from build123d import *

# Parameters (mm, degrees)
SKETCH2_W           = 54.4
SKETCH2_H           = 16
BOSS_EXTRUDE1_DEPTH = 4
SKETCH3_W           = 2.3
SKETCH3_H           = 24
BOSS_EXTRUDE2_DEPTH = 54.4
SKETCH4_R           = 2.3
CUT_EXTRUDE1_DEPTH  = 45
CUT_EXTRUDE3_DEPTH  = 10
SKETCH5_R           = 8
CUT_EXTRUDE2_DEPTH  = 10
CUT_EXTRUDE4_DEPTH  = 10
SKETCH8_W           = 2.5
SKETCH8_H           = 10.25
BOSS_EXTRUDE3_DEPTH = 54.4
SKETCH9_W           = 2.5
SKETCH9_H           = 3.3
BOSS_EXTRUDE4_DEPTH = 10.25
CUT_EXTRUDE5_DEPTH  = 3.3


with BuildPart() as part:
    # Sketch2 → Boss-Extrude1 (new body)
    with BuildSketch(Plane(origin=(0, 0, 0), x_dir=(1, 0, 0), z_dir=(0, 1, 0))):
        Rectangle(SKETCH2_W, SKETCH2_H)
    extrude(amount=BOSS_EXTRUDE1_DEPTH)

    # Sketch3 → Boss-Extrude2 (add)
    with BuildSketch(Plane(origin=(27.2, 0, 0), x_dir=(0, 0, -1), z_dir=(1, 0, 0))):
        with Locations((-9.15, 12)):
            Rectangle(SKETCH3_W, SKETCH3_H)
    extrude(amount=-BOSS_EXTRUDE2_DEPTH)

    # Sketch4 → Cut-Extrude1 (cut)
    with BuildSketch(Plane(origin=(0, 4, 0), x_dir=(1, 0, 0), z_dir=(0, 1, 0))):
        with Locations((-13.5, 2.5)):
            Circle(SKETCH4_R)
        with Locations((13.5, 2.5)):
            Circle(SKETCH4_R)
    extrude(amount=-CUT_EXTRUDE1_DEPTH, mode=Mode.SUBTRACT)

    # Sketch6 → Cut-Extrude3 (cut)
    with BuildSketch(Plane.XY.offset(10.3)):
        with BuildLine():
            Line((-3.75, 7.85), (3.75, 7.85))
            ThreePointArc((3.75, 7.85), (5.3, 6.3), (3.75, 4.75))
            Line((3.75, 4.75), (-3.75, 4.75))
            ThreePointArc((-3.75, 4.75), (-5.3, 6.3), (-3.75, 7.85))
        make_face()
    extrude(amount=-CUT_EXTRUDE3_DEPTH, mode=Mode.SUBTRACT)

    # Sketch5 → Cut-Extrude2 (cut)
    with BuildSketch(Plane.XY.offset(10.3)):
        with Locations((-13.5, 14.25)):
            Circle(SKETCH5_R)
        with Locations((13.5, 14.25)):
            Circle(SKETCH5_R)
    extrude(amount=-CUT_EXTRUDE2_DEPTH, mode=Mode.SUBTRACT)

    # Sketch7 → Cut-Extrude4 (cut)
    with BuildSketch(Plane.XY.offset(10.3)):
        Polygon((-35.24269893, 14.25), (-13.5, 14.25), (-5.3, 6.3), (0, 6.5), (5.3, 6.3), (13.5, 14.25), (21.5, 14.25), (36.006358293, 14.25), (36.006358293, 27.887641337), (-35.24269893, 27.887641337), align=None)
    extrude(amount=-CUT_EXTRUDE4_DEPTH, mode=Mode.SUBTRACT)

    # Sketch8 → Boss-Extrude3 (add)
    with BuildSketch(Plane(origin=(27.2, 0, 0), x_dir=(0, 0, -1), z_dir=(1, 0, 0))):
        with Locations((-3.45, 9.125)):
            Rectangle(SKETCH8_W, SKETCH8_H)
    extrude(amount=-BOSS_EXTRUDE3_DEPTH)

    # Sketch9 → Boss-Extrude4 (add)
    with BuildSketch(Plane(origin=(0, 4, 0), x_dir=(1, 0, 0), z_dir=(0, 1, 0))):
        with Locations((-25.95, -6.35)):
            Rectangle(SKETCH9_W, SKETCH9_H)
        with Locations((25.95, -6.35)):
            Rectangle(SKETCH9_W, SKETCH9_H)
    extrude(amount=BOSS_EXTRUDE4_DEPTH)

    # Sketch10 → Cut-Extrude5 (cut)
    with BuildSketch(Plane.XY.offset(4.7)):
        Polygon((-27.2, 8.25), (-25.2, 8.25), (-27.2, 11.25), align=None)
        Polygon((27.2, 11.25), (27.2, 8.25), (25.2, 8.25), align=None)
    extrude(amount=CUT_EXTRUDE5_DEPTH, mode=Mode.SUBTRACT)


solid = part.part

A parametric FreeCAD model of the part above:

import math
import FreeCAD as App
import Part
import Sketcher
from FreeCAD import Vector
Q = App.Units.Quantity

doc = App.newDocument("Part")
body = doc.addObject("PartDesign::Body", "Body")

sketch1 = body.newObject("Sketcher::SketchObject", "Sketch")
sketch1.AttachmentSupport = (doc.getObject("XZ_Plane"), [""])
sketch1.MapMode = "FlatFace"
sketch1.addGeometry(Part.LineSegment(Vector(-27, -8, 0), Vector(-27, 8, 0)), False)
sketch1.addGeometry(Part.LineSegment(Vector(-27, 8, 0), Vector(27, 8, 0)), False)
sketch1.addGeometry(Part.LineSegment(Vector(27, 8, 0), Vector(27, -8, 0)), False)
sketch1.addGeometry(Part.LineSegment(Vector(27, -8, 0), Vector(-27, -8, 0)), False)
sketch1.addConstraint(Sketcher.Constraint("Coincident", 0, 2, 1, 1))
sketch1.addConstraint(Sketcher.Constraint("Coincident", 1, 2, 2, 1))
sketch1.addConstraint(Sketcher.Constraint("Coincident", 2, 2, 3, 1))
sketch1.addConstraint(Sketcher.Constraint("Coincident", 3, 2, 0, 1))
sketch1.addConstraint(Sketcher.Constraint("Vertical", 0))
sketch1.addConstraint(Sketcher.Constraint("Horizontal", 1))
sketch1.addConstraint(Sketcher.Constraint("Vertical", 2))
sketch1.addConstraint(Sketcher.Constraint("Horizontal", 3))
sketch1.addConstraint(Sketcher.Constraint("Symmetric", 0, 2, 2, 2, -1, 1))
sketch1.addConstraint(Sketcher.Constraint("DistanceY", 0, 1, 0, 2, Q("16 mm")))
sketch1.addConstraint(Sketcher.Constraint("DistanceX", 1, 1, 1, 2, Q("54.4 mm")))
pad1 = body.newObject("PartDesign::Pad", "Pad")
pad1.Profile = sketch1
pad1.Length = 4
pad1.Reversed = True

sketch2 = body.newObject("Sketcher::SketchObject", "Sketch001")
sketch2.AttachmentSupport = (doc.getObject("YZ_Plane"), [""])
sketch2.MapMode = "FlatFace"
sketch2.AttachmentOffset = App.Placement(Vector(0, 0, 27.2), App.Rotation())
sketch2.addGeometry(Part.LineSegment(Vector(24, 10.3, 0), Vector(0, 10.3, 0)), False)
sketch2.addGeometry(Part.LineSegment(Vector(0, 10.3, 0), Vector(0, 8, 0)), False)
sketch2.addGeometry(Part.LineSegment(Vector(0, 8, 0), Vector(24, 8, 0)), False)
sketch2.addGeometry(Part.LineSegment(Vector(24, 8, 0), Vector(24, 10.3, 0)), False)
sketch2.addConstraint(Sketcher.Constraint("Coincident", 0, 2, 1, 1))
sketch2.addConstraint(Sketcher.Constraint("Coincident", 1, 2, 2, 1))
sketch2.addConstraint(Sketcher.Constraint("Coincident", 2, 2, 3, 1))
sketch2.addConstraint(Sketcher.Constraint("Coincident", 3, 2, 0, 1))
sketch2.addConstraint(Sketcher.Constraint("Horizontal", 0))
sketch2.addConstraint(Sketcher.Constraint("Vertical", 1))
sketch2.addConstraint(Sketcher.Constraint("Horizontal", 2))
sketch2.addConstraint(Sketcher.Constraint("Vertical", 3))
sketch2.addConstraint(Sketcher.Constraint("PointOnObject", 0, 2, -2))
sketch2.addConstraint(Sketcher.Constraint("DistanceX", 0, 2, 0, 1, Q("24 mm")))
sketch2.addConstraint(Sketcher.Constraint("DistanceY", 1, 2, 1, 1, Q("2.3 mm")))
sketch2.addConstraint(Sketcher.Constraint("DistanceY", -1, 1, 1, 2, Q("8 mm")))
pad2 = body.newObject("PartDesign::Pad", "Pad001")
pad2.Profile = sketch2
pad2.Length = 54.4
pad2.Reversed = True

sketch3 = body.newObject("Sketcher::SketchObject", "Sketch002")
sketch3.AttachmentSupport = (doc.getObject("XZ_Plane"), [""])
sketch3.MapMode = "FlatFace"
sketch3.AttachmentOffset = App.Placement(Vector(0, 0, -4), App.Rotation())
sketch3.addGeometry(Part.Circle(Vector(-13.5, -2.5, 0), Vector(0, 0, 1), 2.3), False)
sketch3.addGeometry(Part.Circle(Vector(13.5, -2.5, 0), Vector(0, 0, 1), 2.3), False)
sketch3.addConstraint(Sketcher.Constraint("Equal", 0, 1))
sketch3.addConstraint(Sketcher.Constraint("Symmetric", 0, 3, 1, 3, -2))
sketch3.addConstraint(Sketcher.Constraint("Diameter", 0, Q("4.6 mm")))
sketch3.addConstraint(Sketcher.Constraint("DistanceX", 0, 3, 1, 3, Q("27 mm")))
sketch3.addConstraint(Sketcher.Constraint("DistanceY", 0, 3, -1, 1, Q("2.5 mm")))
pocket1 = body.newObject("PartDesign::Pocket", "Pocket")
pocket1.Profile = sketch3
pocket1.Length = 45
pocket1.Reversed = True

sketch4 = body.newObject("Sketcher::SketchObject", "Sketch003")
sketch4.AttachmentSupport = (doc.getObject("XY_Plane"), [""])
sketch4.MapMode = "FlatFace"
sketch4.AttachmentOffset = App.Placement(Vector(0, 0, 10.3), App.Rotation())
sketch4.addGeometry(Part.LineSegment(Vector(3.8, 7.8, 0), Vector(-3.8, 7.8, 0)), False)
sketch4.addGeometry(Part.ArcOfCircle(Part.Circle(Vector(-3.8, 6.3, 0), Vector(0, 0, 1), 1.6), math.radians(90), math.radians(270)), False)
sketch4.addGeometry(Part.LineSegment(Vector(-3.8, 4.8, 0), Vector(3.8, 4.8, 0)), False)
sketch4.addGeometry(Part.ArcOfCircle(Part.Circle(Vector(3.8, 6.3, 0), Vector(0, 0, 1), 1.6), math.radians(-90), math.radians(90)), False)
sketch4.addConstraint(Sketcher.Constraint("Tangent", 0, 2, 1, 1))
sketch4.addConstraint(Sketcher.Constraint("Tangent", 1, 2, 2, 1))
sketch4.addConstraint(Sketcher.Constraint("Tangent", 2, 2, 3, 1))
sketch4.addConstraint(Sketcher.Constraint("Tangent", 3, 2, 0, 1))
sketch4.addConstraint(Sketcher.Constraint("Horizontal", 0))
sketch4.addConstraint(Sketcher.Constraint("Horizontal", 2))
sketch4.addConstraint(Sketcher.Constraint("Radius", 1, Q("1.55 mm")))
sketch4.addConstraint(Sketcher.Constraint("DistanceX", 0, 2, 0, 1, Q("7.5 mm")))
sketch4.addConstraint(Sketcher.Constraint("DistanceY", -1, 1, 1, 3, Q("6.3 mm")))
sketch4.addConstraint(Sketcher.Constraint("DistanceX", 1, 3, -1, 1, Q("3.75 mm")))
pocket2 = body.newObject("PartDesign::Pocket", "Pocket001")
pocket2.Profile = sketch4
pocket2.Length = 10

sketch5 = body.newObject("Sketcher::SketchObject", "Sketch004")
sketch5.AttachmentSupport = (doc.getObject("XY_Plane"), [""])
sketch5.MapMode = "FlatFace"
sketch5.AttachmentOffset = App.Placement(Vector(0, 0, 10.3), App.Rotation())
sketch5.addGeometry(Part.Circle(Vector(-14, 14, 0), Vector(0, 0, 1), 8), False)
sketch5.addGeometry(Part.Circle(Vector(14, 14, 0), Vector(0, 0, 1), 8), False)
sketch5.addConstraint(Sketcher.Constraint("Equal", 0, 1))
sketch5.addConstraint(Sketcher.Constraint("Symmetric", 0, 3, 1, 3, -2))
sketch5.addConstraint(Sketcher.Constraint("Diameter", 0, Q("16 mm")))
sketch5.addConstraint(Sketcher.Constraint("DistanceX", 0, 3, 1, 3, Q("27 mm")))
sketch5.addConstraint(Sketcher.Constraint("DistanceY", -1, 1, 0, 3, Q("14.25 mm")))
pocket3 = body.newObject("PartDesign::Pocket", "Pocket002")
pocket3.Profile = sketch5
pocket3.Length = 10

sketch6 = body.newObject("Sketcher::SketchObject", "Sketch005")
sketch6.AttachmentSupport = (doc.getObject("XY_Plane"), [""])
sketch6.MapMode = "FlatFace"
sketch6.AttachmentOffset = App.Placement(Vector(0, 0, 10.3), App.Rotation())
sketch6.addGeometry(Part.LineSegment(Vector(-35, 14, 0), Vector(-14, 14, 0)), False)
sketch6.addGeometry(Part.LineSegment(Vector(-14, 14, 0), Vector(-5, 6, 0)), False)
sketch6.addGeometry(Part.LineSegment(Vector(-5, 6, 0), Vector(0, 6, 0)), False)
sketch6.addGeometry(Part.LineSegment(Vector(0, 6, 0), Vector(5, 6, 0)), False)
sketch6.addGeometry(Part.LineSegment(Vector(5, 6, 0), Vector(14, 14, 0)), False)
sketch6.addGeometry(Part.LineSegment(Vector(14, 14, 0), Vector(36, 14, 0)), False)
sketch6.addGeometry(Part.LineSegment(Vector(36, 14, 0), Vector(36, 28, 0)), False)
sketch6.addGeometry(Part.LineSegment(Vector(36, 28, 0), Vector(-35, 28, 0)), False)
sketch6.addGeometry(Part.LineSegment(Vector(-35, 28, 0), Vector(-35, 14, 0)), False)
sketch6.addConstraint(Sketcher.Constraint("Coincident", 0, 2, 1, 1))
sketch6.addConstraint(Sketcher.Constraint("Coincident", 1, 2, 2, 1))
sketch6.addConstraint(Sketcher.Constraint("Coincident", 2, 2, 3, 1))
sketch6.addConstraint(Sketcher.Constraint("Coincident", 3, 2, 4, 1))
sketch6.addConstraint(Sketcher.Constraint("Coincident", 4, 2, 5, 1))
sketch6.addConstraint(Sketcher.Constraint("Coincident", 5, 2, 6, 1))
sketch6.addConstraint(Sketcher.Constraint("Coincident", 6, 2, 7, 1))
sketch6.addConstraint(Sketcher.Constraint("Coincident", 7, 2, 8, 1))
sketch6.addConstraint(Sketcher.Constraint("Coincident", 8, 2, 0, 1))
sketch6.addConstraint(Sketcher.Constraint("Horizontal", 0))
sketch6.addConstraint(Sketcher.Constraint("Horizontal", 5))
sketch6.addConstraint(Sketcher.Constraint("Vertical", 6))
sketch6.addConstraint(Sketcher.Constraint("Horizontal", 7))
sketch6.addConstraint(Sketcher.Constraint("Vertical", 8))
sketch6.addConstraint(Sketcher.Constraint("Symmetric", 1, 2, 3, 2, -2))
sketch6.addConstraint(Sketcher.Constraint("Symmetric", 0, 2, 4, 2, -2))
sketch6.addConstraint(Sketcher.Constraint("PointOnObject", 2, 2, -2))
sketch6.addConstraint(Sketcher.Constraint("DistanceX", 0, 2, 4, 2, Q("27 mm")))
sketch6.addConstraint(Sketcher.Constraint("DistanceX", 1, 2, -1, 1, Q("5.3 mm")))
sketch6.addConstraint(Sketcher.Constraint("DistanceY", -1, 1, 1, 2, Q("6.3 mm")))
sketch6.addConstraint(Sketcher.Constraint("DistanceY", -1, 1, 2, 2, Q("6.5 mm")))
sketch6.addConstraint(Sketcher.Constraint("DistanceY", -1, 1, 0, 2, Q("14.25 mm")))
sketch6.addConstraint(Sketcher.Constraint("DistanceX", 0, 1, 0, 2, Q("21.742699 mm")))
sketch6.addConstraint(Sketcher.Constraint("DistanceX", 5, 1, 5, 2, Q("22.506358 mm")))
sketch6.addConstraint(Sketcher.Constraint("DistanceY", 6, 1, 6, 2, Q("13.637641 mm")))
pocket4 = body.newObject("PartDesign::Pocket", "Pocket003")
pocket4.Profile = sketch6
pocket4.Length = 10

sketch7 = body.newObject("Sketcher::SketchObject", "Sketch006")
sketch7.AttachmentSupport = (doc.getObject("YZ_Plane"), [""])
sketch7.MapMode = "FlatFace"
sketch7.AttachmentOffset = App.Placement(Vector(0, 0, 27.2), App.Rotation())
sketch7.addGeometry(Part.LineSegment(Vector(14.2, 4.7, 0), Vector(4, 4.7, 0)), False)
sketch7.addGeometry(Part.LineSegment(Vector(4, 4.7, 0), Vector(4, 2.2, 0)), False)
sketch7.addGeometry(Part.LineSegment(Vector(4, 2.2, 0), Vector(14.2, 2.2, 0)), False)
sketch7.addGeometry(Part.LineSegment(Vector(14.2, 2.2, 0), Vector(14.2, 4.7, 0)), False)
sketch7.addConstraint(Sketcher.Constraint("Coincident", 0, 2, 1, 1))
sketch7.addConstraint(Sketcher.Constraint("Coincident", 1, 2, 2, 1))
sketch7.addConstraint(Sketcher.Constraint("Coincident", 2, 2, 3, 1))
sketch7.addConstraint(Sketcher.Constraint("Coincident", 3, 2, 0, 1))
sketch7.addConstraint(Sketcher.Constraint("Horizontal", 0))
sketch7.addConstraint(Sketcher.Constraint("Vertical", 1))
sketch7.addConstraint(Sketcher.Constraint("Horizontal", 2))
sketch7.addConstraint(Sketcher.Constraint("Vertical", 3))
sketch7.addConstraint(Sketcher.Constraint("DistanceY", 1, 2, 1, 1, Q("2.5 mm")))
sketch7.addConstraint(Sketcher.Constraint("DistanceX", -1, 1, 0, 2, Q("4 mm")))
sketch7.addConstraint(Sketcher.Constraint("DistanceX", 0, 2, 0, 1, Q("10.25 mm")))
sketch7.addConstraint(Sketcher.Constraint("DistanceY", -1, 1, 0, 2, Q("4.7 mm")))
pad3 = body.newObject("PartDesign::Pad", "Pad002")
pad3.Profile = sketch7
pad3.Length = 54.4
pad3.Reversed = True

sketch8 = body.newObject("Sketcher::SketchObject", "Sketch007")
sketch8.AttachmentSupport = (doc.getObject("XZ_Plane"), [""])
sketch8.MapMode = "FlatFace"
sketch8.AttachmentOffset = App.Placement(Vector(0, 0, -4), App.Rotation())
sketch8.addGeometry(Part.LineSegment(Vector(-27.2, 4.7, 0), Vector(-27.2, 8, 0)), False)
sketch8.addGeometry(Part.LineSegment(Vector(-27.2, 8, 0), Vector(-24.7, 8, 0)), False)
sketch8.addGeometry(Part.LineSegment(Vector(-24.7, 8, 0), Vector(-24.7, 4.7, 0)), False)
sketch8.addGeometry(Part.LineSegment(Vector(-24.7, 4.7, 0), Vector(-27.2, 4.7, 0)), False)
sketch8.addGeometry(Part.LineSegment(Vector(24.7, 4.7, 0), Vector(24.7, 8, 0)), False)
sketch8.addGeometry(Part.LineSegment(Vector(24.7, 8, 0), Vector(27.2, 8, 0)), False)
sketch8.addGeometry(Part.LineSegment(Vector(27.2, 8, 0), Vector(27.2, 4.7, 0)), False)
sketch8.addGeometry(Part.LineSegment(Vector(27.2, 4.7, 0), Vector(24.7, 4.7, 0)), False)
sketch8.addConstraint(Sketcher.Constraint("Coincident", 0, 2, 1, 1))
sketch8.addConstraint(Sketcher.Constraint("Coincident", 1, 2, 2, 1))
sketch8.addConstraint(Sketcher.Constraint("Coincident", 2, 2, 3, 1))
sketch8.addConstraint(Sketcher.Constraint("Coincident", 3, 2, 0, 1))
sketch8.addConstraint(Sketcher.Constraint("Coincident", 4, 2, 5, 1))
sketch8.addConstraint(Sketcher.Constraint("Coincident", 5, 2, 6, 1))
sketch8.addConstraint(Sketcher.Constraint("Coincident", 6, 2, 7, 1))
sketch8.addConstraint(Sketcher.Constraint("Coincident", 7, 2, 4, 1))
sketch8.addConstraint(Sketcher.Constraint("Vertical", 0))
sketch8.addConstraint(Sketcher.Constraint("Horizontal", 1))
sketch8.addConstraint(Sketcher.Constraint("Vertical", 2))
sketch8.addConstraint(Sketcher.Constraint("Horizontal", 3))
sketch8.addConstraint(Sketcher.Constraint("Vertical", 4))
sketch8.addConstraint(Sketcher.Constraint("Horizontal", 5))
sketch8.addConstraint(Sketcher.Constraint("Vertical", 6))
sketch8.addConstraint(Sketcher.Constraint("Horizontal", 7))
sketch8.addConstraint(Sketcher.Constraint("Symmetric", 1, 2, 4, 2, -2))
sketch8.addConstraint(Sketcher.Constraint("Symmetric", 3, 2, 6, 2, -2))
sketch8.addConstraint(Sketcher.Constraint("DistanceX", 1, 1, 1, 2, Q("2.5 mm")))
sketch8.addConstraint(Sketcher.Constraint("DistanceY", 0, 1, 0, 2, Q("3.3 mm")))
sketch8.addConstraint(Sketcher.Constraint("DistanceY", -1, 1, 0, 2, Q("8 mm")))
sketch8.addConstraint(Sketcher.Constraint("DistanceX", 0, 2, -1, 1, Q("27.2 mm")))
pad4 = body.newObject("PartDesign::Pad", "Pad003")
pad4.Profile = sketch8
pad4.Length = 10.25
pad4.Reversed = True

sketch9 = body.newObject("Sketcher::SketchObject", "Sketch008")
sketch9.AttachmentSupport = (doc.getObject("XY_Plane"), [""])
sketch9.MapMode = "FlatFace"
sketch9.AttachmentOffset = App.Placement(Vector(0, 0, 4.7), App.Rotation())
sketch9.addGeometry(Part.LineSegment(Vector(-27.2, 8.2, 0), Vector(-25.2, 8.2, 0)), False)
sketch9.addGeometry(Part.LineSegment(Vector(-25.2, 8.2, 0), Vector(-27.2, 11.2, 0)), False)
sketch9.addGeometry(Part.LineSegment(Vector(-27.2, 11.2, 0), Vector(-27.2, 8.2, 0)), False)
sketch9.addGeometry(Part.LineSegment(Vector(27.2, 8.2, 0), Vector(27.2, 11.2, 0)), False)
sketch9.addGeometry(Part.LineSegment(Vector(27.2, 11.2, 0), Vector(25.2, 8.2, 0)), False)
sketch9.addGeometry(Part.LineSegment(Vector(25.2, 8.2, 0), Vector(27.2, 8.2, 0)), False)
sketch9.addConstraint(Sketcher.Constraint("Coincident", 0, 2, 1, 1))
sketch9.addConstraint(Sketcher.Constraint("Coincident", 1, 2, 2, 1))
sketch9.addConstraint(Sketcher.Constraint("Coincident", 2, 2, 0, 1))
sketch9.addConstraint(Sketcher.Constraint("Coincident", 3, 2, 4, 1))
sketch9.addConstraint(Sketcher.Constraint("Coincident", 4, 2, 5, 1))
sketch9.addConstraint(Sketcher.Constraint("Coincident", 5, 2, 3, 1))
sketch9.addConstraint(Sketcher.Constraint("Horizontal", 0))
sketch9.addConstraint(Sketcher.Constraint("Vertical", 2))
sketch9.addConstraint(Sketcher.Constraint("Vertical", 3))
sketch9.addConstraint(Sketcher.Constraint("Horizontal", 5))
sketch9.addConstraint(Sketcher.Constraint("Symmetric", 1, 2, 3, 2, -2))
sketch9.addConstraint(Sketcher.Constraint("Symmetric", 0, 2, 4, 2, -2))
sketch9.addConstraint(Sketcher.Constraint("DistanceX", 0, 1, 0, 2, Q("2 mm")))
sketch9.addConstraint(Sketcher.Constraint("DistanceY", 2, 2, 2, 1, Q("3 mm")))
sketch9.addConstraint(Sketcher.Constraint("DistanceX", 0, 2, -1, 1, Q("25.2 mm")))
sketch9.addConstraint(Sketcher.Constraint("DistanceY", -1, 1, 0, 2, Q("8.25 mm")))
pocket5 = body.newObject("PartDesign::Pocket", "Pocket004")
pocket5.Profile = sketch9
pocket5.Length = 3.3
pocket5.Reversed = True

doc.recompute()
